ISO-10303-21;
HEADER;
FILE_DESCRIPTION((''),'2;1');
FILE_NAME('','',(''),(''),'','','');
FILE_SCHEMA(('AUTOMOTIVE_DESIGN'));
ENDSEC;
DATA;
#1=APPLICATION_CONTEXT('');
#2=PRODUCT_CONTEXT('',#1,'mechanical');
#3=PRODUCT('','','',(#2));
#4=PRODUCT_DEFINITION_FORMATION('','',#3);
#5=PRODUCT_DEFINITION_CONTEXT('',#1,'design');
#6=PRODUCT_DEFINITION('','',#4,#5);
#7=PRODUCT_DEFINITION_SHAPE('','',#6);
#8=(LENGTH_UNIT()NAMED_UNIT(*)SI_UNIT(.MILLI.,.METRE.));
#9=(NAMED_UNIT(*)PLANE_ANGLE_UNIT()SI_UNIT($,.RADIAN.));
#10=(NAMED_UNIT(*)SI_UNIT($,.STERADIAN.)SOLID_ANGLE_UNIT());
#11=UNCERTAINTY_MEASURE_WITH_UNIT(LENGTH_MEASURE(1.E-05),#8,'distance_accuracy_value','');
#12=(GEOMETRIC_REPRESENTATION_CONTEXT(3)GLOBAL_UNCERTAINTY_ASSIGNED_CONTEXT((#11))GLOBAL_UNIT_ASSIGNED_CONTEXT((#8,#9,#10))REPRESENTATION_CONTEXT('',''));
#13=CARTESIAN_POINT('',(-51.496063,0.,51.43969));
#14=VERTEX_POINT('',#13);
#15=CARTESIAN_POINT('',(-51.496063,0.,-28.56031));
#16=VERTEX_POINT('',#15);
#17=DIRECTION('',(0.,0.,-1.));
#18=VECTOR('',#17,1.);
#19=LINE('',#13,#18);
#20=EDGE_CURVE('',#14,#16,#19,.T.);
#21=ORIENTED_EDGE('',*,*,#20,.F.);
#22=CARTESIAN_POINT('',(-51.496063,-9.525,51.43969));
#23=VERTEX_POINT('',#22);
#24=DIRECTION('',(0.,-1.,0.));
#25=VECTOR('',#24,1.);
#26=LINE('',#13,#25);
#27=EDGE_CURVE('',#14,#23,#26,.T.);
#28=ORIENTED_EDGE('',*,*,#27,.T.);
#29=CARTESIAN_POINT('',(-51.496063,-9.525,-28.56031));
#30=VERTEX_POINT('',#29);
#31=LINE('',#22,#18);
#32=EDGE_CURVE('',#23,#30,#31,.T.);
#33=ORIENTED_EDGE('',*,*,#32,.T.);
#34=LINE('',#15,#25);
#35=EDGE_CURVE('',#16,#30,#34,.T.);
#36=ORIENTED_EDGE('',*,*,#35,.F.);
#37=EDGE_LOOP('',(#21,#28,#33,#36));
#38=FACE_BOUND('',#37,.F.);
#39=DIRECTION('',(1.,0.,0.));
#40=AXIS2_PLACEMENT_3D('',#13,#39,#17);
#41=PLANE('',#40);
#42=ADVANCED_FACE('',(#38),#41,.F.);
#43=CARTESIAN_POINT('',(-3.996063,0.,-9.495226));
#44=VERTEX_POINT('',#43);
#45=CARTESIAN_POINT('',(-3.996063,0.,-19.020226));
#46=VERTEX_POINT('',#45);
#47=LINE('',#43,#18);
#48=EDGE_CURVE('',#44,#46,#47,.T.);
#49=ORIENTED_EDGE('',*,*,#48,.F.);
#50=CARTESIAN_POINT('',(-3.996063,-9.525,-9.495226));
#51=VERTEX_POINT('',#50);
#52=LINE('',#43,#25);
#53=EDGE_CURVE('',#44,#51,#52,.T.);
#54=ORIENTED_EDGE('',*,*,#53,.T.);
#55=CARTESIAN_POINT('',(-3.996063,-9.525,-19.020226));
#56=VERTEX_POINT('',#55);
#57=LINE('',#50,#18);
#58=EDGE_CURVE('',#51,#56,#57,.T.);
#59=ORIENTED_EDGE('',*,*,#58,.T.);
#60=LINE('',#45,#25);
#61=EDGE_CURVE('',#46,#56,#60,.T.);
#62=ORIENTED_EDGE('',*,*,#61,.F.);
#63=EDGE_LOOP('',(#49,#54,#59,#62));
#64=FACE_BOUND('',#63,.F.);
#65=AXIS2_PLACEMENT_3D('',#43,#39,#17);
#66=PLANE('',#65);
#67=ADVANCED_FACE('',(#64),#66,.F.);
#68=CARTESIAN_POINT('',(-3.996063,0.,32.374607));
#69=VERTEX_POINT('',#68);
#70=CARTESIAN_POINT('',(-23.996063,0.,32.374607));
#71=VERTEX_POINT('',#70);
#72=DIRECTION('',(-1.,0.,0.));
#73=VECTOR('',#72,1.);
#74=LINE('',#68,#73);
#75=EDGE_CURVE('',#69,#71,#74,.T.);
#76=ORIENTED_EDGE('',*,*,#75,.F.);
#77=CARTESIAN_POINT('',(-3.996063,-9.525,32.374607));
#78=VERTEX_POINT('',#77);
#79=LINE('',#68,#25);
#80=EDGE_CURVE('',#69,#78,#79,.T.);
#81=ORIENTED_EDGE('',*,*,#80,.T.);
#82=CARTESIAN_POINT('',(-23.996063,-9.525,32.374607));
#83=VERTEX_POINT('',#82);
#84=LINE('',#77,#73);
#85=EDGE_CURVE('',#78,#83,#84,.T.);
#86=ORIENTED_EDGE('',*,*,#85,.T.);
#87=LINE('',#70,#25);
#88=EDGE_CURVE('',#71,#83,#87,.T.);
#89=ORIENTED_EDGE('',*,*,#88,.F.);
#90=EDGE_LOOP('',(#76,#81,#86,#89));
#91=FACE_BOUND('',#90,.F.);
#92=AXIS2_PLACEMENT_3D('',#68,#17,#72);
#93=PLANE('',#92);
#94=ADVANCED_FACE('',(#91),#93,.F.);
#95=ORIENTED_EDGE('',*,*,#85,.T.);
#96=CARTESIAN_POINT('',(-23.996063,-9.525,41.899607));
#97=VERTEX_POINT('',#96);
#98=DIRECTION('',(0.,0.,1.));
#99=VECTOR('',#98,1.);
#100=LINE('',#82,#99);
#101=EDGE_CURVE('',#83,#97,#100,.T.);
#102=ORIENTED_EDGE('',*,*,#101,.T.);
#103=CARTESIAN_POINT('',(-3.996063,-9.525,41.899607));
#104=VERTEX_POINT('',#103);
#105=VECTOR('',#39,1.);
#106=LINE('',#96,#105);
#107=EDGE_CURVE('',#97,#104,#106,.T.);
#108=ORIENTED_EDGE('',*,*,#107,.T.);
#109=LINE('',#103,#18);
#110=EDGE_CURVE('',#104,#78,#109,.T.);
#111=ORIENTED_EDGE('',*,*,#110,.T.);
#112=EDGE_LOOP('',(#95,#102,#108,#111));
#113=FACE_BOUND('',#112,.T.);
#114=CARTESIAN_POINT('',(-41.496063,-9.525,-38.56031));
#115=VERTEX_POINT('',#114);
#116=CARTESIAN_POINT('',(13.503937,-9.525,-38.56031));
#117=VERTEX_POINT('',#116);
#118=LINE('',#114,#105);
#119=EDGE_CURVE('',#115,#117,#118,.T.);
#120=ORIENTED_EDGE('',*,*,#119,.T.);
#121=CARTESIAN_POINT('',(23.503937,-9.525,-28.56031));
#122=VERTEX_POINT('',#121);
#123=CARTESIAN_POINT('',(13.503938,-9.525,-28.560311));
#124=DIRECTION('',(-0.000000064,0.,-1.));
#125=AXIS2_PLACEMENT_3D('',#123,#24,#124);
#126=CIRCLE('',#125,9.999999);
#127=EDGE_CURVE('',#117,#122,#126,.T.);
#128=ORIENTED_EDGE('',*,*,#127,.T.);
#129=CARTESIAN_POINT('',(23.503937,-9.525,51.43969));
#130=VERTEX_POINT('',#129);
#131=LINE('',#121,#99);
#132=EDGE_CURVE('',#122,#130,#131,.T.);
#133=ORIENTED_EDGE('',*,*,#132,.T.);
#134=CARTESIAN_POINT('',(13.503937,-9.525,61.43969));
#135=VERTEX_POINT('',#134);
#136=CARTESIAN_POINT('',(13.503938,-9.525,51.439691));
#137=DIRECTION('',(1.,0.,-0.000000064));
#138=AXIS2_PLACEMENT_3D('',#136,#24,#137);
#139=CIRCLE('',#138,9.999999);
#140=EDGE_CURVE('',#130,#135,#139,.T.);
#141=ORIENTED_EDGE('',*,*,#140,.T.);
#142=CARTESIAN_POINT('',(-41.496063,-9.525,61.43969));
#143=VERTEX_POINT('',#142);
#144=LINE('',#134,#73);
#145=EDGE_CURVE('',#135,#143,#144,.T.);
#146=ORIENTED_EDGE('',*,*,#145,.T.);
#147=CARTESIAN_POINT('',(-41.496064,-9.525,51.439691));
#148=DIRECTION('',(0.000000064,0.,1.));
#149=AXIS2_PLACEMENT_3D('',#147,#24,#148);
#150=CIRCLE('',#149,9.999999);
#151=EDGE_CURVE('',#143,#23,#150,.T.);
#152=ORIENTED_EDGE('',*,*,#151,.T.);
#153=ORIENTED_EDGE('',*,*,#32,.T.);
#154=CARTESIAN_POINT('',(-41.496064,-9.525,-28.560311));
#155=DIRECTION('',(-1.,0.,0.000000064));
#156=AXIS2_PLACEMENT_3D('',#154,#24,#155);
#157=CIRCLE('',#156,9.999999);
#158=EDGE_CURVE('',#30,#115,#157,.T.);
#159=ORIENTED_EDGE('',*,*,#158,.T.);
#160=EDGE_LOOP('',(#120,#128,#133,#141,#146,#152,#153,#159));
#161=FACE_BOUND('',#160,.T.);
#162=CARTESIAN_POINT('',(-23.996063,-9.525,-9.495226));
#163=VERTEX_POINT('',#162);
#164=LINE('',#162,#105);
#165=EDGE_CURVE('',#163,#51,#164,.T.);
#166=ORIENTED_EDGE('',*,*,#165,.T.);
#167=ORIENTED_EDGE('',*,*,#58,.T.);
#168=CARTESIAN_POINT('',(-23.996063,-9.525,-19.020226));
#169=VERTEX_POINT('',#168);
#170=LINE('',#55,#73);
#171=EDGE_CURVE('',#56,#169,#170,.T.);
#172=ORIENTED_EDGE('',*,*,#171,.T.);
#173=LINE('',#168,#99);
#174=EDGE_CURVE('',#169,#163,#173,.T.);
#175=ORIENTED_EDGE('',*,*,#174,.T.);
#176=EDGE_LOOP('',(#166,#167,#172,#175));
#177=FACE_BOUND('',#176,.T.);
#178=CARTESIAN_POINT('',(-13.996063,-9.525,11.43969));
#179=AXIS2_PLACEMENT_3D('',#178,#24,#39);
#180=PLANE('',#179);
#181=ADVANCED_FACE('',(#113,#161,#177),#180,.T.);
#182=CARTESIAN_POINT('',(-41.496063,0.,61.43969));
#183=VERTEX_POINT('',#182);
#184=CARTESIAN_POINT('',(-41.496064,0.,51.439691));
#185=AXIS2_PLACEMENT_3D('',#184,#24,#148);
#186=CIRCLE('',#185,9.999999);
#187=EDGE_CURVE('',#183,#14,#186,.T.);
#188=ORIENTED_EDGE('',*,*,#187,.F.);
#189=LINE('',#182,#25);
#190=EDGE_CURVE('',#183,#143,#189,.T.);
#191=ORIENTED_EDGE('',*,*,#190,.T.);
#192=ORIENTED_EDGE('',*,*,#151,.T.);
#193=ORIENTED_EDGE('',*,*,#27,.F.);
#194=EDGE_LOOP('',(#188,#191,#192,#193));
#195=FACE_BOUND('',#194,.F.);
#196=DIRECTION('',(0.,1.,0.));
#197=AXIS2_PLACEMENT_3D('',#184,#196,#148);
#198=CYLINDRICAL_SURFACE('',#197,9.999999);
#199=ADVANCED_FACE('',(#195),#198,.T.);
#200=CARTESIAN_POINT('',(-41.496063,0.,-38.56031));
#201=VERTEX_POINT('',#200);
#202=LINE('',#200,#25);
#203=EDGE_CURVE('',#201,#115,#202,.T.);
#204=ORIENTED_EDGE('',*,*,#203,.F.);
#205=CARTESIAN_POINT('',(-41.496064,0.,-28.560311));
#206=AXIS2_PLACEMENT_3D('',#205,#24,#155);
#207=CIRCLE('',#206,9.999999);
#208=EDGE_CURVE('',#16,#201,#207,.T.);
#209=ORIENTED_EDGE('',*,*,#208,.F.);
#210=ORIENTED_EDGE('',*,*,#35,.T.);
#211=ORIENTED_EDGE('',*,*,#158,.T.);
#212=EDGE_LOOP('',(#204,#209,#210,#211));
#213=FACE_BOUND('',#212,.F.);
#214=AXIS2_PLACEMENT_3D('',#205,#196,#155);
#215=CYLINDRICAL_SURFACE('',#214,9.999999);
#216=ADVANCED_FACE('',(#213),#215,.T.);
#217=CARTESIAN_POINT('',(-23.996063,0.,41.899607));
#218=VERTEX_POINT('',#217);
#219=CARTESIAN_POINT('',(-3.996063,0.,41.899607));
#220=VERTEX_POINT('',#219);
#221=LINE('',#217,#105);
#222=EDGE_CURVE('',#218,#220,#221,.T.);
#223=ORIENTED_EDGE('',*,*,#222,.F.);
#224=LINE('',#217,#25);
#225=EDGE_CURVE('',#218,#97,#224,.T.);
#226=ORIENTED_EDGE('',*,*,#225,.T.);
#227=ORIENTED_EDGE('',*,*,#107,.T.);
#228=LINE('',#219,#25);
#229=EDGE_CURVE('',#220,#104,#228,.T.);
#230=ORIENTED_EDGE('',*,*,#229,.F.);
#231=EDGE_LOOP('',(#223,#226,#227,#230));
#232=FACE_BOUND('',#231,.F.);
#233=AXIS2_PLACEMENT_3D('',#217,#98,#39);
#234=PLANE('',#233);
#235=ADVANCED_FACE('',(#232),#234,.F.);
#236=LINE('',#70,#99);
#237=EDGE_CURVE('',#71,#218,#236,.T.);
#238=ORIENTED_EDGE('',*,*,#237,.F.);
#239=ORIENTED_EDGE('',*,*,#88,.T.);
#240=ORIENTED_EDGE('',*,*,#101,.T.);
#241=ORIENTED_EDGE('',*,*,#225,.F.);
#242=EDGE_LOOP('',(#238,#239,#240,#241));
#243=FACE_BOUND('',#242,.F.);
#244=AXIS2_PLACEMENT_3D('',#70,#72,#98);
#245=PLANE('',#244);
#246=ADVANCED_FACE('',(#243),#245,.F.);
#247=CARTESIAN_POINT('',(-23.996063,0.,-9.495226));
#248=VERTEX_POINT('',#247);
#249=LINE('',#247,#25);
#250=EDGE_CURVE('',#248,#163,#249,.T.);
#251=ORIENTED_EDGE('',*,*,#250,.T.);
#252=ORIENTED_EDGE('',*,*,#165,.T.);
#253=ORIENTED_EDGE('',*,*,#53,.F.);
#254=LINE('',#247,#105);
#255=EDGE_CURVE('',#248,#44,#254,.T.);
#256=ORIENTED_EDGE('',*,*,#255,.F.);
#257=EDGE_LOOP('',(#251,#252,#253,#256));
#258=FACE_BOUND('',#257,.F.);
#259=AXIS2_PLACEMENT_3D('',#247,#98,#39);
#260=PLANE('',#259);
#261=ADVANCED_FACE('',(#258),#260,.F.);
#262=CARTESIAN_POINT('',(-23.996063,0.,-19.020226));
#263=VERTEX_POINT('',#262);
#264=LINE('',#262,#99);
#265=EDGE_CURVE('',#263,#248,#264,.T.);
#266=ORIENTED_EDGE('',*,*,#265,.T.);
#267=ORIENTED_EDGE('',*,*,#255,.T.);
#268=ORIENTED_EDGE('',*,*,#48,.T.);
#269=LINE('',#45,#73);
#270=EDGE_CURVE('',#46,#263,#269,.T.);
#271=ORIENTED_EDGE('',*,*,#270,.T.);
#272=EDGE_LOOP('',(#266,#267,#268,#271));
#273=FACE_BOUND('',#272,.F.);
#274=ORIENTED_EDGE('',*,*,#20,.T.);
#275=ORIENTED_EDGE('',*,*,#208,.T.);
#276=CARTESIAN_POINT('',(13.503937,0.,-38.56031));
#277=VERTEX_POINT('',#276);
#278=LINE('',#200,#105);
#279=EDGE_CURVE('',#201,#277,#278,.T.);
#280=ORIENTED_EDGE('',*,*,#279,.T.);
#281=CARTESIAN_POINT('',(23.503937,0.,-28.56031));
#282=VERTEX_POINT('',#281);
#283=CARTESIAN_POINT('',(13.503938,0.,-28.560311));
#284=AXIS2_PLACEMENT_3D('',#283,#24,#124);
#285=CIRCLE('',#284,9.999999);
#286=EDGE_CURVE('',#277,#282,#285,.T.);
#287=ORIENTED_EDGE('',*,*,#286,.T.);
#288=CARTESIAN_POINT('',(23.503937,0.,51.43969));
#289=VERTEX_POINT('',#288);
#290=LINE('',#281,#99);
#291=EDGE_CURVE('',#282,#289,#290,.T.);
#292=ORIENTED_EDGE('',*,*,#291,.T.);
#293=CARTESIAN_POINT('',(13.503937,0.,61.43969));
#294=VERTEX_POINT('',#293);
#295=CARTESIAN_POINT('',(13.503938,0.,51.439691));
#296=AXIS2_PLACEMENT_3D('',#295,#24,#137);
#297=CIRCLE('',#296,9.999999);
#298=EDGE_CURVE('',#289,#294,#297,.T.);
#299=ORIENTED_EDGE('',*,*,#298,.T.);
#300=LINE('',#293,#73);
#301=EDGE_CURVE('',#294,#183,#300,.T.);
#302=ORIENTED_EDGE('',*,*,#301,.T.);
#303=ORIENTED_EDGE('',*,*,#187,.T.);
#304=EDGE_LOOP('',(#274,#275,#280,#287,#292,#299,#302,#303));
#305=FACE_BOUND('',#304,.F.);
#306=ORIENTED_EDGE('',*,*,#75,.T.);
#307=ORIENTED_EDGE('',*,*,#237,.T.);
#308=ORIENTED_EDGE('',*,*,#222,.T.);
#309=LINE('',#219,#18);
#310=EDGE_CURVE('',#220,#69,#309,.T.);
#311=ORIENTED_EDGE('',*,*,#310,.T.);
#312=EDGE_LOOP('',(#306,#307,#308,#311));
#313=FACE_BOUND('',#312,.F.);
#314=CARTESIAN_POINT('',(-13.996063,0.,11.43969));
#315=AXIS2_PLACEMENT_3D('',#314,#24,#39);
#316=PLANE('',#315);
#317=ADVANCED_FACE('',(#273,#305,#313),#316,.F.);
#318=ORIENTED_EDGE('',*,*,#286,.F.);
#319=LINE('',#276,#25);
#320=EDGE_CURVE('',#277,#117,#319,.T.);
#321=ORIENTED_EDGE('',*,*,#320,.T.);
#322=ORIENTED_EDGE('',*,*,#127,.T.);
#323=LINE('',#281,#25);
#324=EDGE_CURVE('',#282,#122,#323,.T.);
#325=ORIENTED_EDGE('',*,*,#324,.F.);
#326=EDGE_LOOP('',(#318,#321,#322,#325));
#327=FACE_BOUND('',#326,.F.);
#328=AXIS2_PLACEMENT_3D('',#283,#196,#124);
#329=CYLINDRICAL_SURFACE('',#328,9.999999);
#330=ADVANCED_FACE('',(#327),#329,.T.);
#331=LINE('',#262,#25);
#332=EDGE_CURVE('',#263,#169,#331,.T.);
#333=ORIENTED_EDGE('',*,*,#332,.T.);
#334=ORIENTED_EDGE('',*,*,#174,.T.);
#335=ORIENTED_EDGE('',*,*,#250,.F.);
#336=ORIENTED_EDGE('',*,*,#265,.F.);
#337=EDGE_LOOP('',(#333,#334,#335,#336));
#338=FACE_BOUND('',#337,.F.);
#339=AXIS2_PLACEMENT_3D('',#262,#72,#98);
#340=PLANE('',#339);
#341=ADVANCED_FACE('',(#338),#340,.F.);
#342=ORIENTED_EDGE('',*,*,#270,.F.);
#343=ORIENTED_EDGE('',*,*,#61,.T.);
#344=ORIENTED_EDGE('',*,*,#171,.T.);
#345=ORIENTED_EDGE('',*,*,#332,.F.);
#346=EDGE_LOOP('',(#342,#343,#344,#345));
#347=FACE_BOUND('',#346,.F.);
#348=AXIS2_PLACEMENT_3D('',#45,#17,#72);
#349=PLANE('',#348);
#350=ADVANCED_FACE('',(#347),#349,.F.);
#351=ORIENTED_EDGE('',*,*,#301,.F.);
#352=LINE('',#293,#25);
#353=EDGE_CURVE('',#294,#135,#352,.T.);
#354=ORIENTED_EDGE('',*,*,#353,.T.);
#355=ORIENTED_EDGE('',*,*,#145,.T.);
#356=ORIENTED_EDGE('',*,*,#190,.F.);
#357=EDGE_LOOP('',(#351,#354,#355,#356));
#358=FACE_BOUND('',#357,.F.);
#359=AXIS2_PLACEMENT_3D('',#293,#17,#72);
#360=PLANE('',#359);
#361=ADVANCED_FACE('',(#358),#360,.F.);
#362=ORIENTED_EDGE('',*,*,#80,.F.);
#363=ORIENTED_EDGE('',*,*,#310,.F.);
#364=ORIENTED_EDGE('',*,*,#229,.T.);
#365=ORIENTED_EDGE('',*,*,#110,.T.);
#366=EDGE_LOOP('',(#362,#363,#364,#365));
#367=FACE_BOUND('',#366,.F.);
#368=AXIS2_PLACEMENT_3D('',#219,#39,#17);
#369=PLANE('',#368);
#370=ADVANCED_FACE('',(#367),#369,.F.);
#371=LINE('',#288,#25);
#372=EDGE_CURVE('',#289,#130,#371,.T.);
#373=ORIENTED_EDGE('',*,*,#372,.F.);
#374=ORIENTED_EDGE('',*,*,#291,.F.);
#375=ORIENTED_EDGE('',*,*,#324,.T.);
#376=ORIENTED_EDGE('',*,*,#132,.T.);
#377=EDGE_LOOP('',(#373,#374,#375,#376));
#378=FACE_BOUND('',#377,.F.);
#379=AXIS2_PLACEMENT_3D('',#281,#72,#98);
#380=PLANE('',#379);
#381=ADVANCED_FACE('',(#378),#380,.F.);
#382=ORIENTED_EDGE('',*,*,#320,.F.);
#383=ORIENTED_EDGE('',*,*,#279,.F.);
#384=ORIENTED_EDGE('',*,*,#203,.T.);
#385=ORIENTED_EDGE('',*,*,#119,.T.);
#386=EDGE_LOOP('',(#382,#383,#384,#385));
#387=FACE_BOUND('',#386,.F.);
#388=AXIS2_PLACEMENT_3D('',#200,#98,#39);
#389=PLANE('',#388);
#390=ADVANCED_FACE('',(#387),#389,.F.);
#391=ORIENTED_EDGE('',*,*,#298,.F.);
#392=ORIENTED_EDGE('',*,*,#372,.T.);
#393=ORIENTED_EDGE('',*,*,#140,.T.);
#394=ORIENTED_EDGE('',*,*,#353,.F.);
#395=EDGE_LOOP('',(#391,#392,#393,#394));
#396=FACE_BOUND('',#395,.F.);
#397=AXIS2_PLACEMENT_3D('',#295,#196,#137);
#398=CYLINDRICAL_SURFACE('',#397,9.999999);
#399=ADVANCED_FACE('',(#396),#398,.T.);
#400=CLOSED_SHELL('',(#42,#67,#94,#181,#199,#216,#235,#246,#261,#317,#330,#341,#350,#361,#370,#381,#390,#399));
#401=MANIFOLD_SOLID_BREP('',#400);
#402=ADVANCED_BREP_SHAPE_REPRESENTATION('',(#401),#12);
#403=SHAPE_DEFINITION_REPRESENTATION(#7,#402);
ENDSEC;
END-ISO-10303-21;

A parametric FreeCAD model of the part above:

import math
import FreeCAD as App
import Part
import Sketcher
Q = App.Units.Quantity


def add_polygon(sketch, points):
    """Adds a closed chain of lines whose ends are joined by coincident constraints."""
    first, n = sketch.GeometryCount, len(points)
    for a, b in zip(points, points[1:] + points[:1]):
        sketch.addGeometry(Part.LineSegment(App.Vector(*a, 0), App.Vector(*b, 0)), False)
    for i in range(n):
        sketch.addConstraint(Sketcher.Constraint("Coincident", first + i, 2, first + (i + 1) % n, 1))

doc = App.newDocument("Part")
params = doc.addObject("Spreadsheet::Sheet", "Params")
for row, (alias, value) in enumerate([
    ("sketch1_radius", "9.999999 mm"),
    ("sketch1_width", "55 mm"),
    ("sketch1_width2", "20 mm"),
    ("sketch1_height", "80 mm"),
    ("pad1_length", "9.525 mm"),
], start=1):
    params.set(f"A{row}", alias)
    params.set(f"B{row}", "=" + value)
    params.setAlias(f"B{row}", alias)

body = doc.addObject("PartDesign::Body", "Body")

sketch1 = doc.addObject("Sketcher::SketchObject", "Sketch")
body.addObject(sketch1)
sketch1.AttachmentSupport = (doc.XZ_Plane, [""])
sketch1.MapMode = "FlatFace"
sketch1.addGeometry(Part.LineSegment(App.Vector(14, 61, 0), App.Vector(-41, 61, 0)), False)
sketch1.addGeometry(Part.ArcOfCircle(Part.Circle(App.Vector(-41, 51, 0), App.Vector(0, 0, 1), 10), math.radians(90), math.radians(180)), False)
sketch1.addGeometry(Part.LineSegment(App.Vector(-51, 51, 0), App.Vector(-51, -29, 0)), False)
sketch1.addGeometry(Part.ArcOfCircle(Part.Circle(App.Vector(-41, -29, 0), App.Vector(0, 0, 1), 10), math.radians(180), math.radians(270)), False)
sketch1.addGeometry(Part.LineSegment(App.Vector(-41, -39, 0), App.Vector(14, -39, 0)), False)
sketch1.addGeometry(Part.ArcOfCircle(Part.Circle(App.Vector(14, -29, 0), App.Vector(0, 0, 1), 10), math.radians(-90), math.radians(0)), False)
sketch1.addGeometry(Part.LineSegment(App.Vector(24, -29, 0), App.Vector(24, 51, 0)), False)
sketch1.addGeometry(Part.ArcOfCircle(Part.Circle(App.Vector(14, 51, 0), App.Vector(0, 0, 1), 10), math.radians(0), math.radians(90)), False)
add_polygon(sketch1, [(-24, -19), (-24, -9), (-4, -9), (-4, -19)])
add_polygon(sketch1, [(-24, 32), (-24, 42), (-4, 42), (-4, 32)])
sketch1.addConstraint([
    Sketcher.Constraint("Tangent", 0, 2, 1, 1),
    Sketcher.Constraint("Tangent", 1, 2, 2, 1),
    Sketcher.Constraint("Tangent", 2, 2, 3, 1),
    Sketcher.Constraint("Tangent", 3, 2, 4, 1),
    Sketcher.Constraint("Tangent", 4, 2, 5, 1),
    Sketcher.Constraint("Tangent", 5, 2, 6, 1),
    Sketcher.Constraint("Tangent", 6, 2, 7, 1),
    Sketcher.Constraint("Tangent", 7, 2, 0, 1),
    Sketcher.Constraint("Horizontal", 0),
    Sketcher.Constraint("Vertical", 2),
    Sketcher.Constraint("Horizontal", 4),
    Sketcher.Constraint("Vertical", 6),
    Sketcher.Constraint("Vertical", 8),
    Sketcher.Constraint("Horizontal", 9),
    Sketcher.Constraint("Vertical", 10),
    Sketcher.Constraint("Horizontal", 11),
    Sketcher.Constraint("Vertical", 12),
    Sketcher.Constraint("Horizontal", 13),
    Sketcher.Constraint("Vertical", 14),
    Sketcher.Constraint("Horizontal", 15),
    Sketcher.Constraint("Equal", 1, 3),
    Sketcher.Constraint("Equal", 3, 5),
    Sketcher.Constraint("Equal", 5, 7),
    Sketcher.Constraint("Vertical", 11, 2, 12, 2),
    Sketcher.Constraint("Vertical", 10, 2, 13, 2),
    Sketcher.Constraint("Equal", 10, 12),
    Sketcher.Constraint("Radius", 1, Q("9.999999 mm")),
    Sketcher.Constraint("DistanceX", 0, 2, 0, 1, Q("55 mm")),
    Sketcher.Constraint("DistanceX", 9, 1, 9, 2, Q("20 mm")),
    Sketcher.Constraint("DistanceY", 2, 2, 2, 1, Q("80 mm")),
    Sketcher.Constraint("DistanceX", 3, 3, 8, 2, Q("17.500001 mm")),
    Sketcher.Constraint("DistanceY", 8, 1, 8, 2, Q("9.525 mm")),
    Sketcher.Constraint("DistanceY", -1, 1, 1, 3, Q("51.439691 mm")),
    Sketcher.Constraint("DistanceX", 1, 3, -1, 1, Q("41.496064 mm")),
    Sketcher.Constraint("DistanceY", 8, 2, -1, 1, Q("9.495226 mm")),
    Sketcher.Constraint("DistanceY", -1, 1, 12, 2, Q("41.899607 mm")),
])
sketch1.setExpression("Constraints[34]", "Params.sketch1_radius")
sketch1.setExpression("Constraints[35]", "Params.sketch1_width")
sketch1.setExpression("Constraints[36]", "Params.sketch1_width2")
sketch1.setExpression("Constraints[37]", "Params.sketch1_height")
pad1 = doc.addObject("PartDesign::Pad", "Pad")
body.addObject(pad1)
pad1.Profile = sketch1
pad1.setExpression("Length", "Params.pad1_length")

doc.recompute()
